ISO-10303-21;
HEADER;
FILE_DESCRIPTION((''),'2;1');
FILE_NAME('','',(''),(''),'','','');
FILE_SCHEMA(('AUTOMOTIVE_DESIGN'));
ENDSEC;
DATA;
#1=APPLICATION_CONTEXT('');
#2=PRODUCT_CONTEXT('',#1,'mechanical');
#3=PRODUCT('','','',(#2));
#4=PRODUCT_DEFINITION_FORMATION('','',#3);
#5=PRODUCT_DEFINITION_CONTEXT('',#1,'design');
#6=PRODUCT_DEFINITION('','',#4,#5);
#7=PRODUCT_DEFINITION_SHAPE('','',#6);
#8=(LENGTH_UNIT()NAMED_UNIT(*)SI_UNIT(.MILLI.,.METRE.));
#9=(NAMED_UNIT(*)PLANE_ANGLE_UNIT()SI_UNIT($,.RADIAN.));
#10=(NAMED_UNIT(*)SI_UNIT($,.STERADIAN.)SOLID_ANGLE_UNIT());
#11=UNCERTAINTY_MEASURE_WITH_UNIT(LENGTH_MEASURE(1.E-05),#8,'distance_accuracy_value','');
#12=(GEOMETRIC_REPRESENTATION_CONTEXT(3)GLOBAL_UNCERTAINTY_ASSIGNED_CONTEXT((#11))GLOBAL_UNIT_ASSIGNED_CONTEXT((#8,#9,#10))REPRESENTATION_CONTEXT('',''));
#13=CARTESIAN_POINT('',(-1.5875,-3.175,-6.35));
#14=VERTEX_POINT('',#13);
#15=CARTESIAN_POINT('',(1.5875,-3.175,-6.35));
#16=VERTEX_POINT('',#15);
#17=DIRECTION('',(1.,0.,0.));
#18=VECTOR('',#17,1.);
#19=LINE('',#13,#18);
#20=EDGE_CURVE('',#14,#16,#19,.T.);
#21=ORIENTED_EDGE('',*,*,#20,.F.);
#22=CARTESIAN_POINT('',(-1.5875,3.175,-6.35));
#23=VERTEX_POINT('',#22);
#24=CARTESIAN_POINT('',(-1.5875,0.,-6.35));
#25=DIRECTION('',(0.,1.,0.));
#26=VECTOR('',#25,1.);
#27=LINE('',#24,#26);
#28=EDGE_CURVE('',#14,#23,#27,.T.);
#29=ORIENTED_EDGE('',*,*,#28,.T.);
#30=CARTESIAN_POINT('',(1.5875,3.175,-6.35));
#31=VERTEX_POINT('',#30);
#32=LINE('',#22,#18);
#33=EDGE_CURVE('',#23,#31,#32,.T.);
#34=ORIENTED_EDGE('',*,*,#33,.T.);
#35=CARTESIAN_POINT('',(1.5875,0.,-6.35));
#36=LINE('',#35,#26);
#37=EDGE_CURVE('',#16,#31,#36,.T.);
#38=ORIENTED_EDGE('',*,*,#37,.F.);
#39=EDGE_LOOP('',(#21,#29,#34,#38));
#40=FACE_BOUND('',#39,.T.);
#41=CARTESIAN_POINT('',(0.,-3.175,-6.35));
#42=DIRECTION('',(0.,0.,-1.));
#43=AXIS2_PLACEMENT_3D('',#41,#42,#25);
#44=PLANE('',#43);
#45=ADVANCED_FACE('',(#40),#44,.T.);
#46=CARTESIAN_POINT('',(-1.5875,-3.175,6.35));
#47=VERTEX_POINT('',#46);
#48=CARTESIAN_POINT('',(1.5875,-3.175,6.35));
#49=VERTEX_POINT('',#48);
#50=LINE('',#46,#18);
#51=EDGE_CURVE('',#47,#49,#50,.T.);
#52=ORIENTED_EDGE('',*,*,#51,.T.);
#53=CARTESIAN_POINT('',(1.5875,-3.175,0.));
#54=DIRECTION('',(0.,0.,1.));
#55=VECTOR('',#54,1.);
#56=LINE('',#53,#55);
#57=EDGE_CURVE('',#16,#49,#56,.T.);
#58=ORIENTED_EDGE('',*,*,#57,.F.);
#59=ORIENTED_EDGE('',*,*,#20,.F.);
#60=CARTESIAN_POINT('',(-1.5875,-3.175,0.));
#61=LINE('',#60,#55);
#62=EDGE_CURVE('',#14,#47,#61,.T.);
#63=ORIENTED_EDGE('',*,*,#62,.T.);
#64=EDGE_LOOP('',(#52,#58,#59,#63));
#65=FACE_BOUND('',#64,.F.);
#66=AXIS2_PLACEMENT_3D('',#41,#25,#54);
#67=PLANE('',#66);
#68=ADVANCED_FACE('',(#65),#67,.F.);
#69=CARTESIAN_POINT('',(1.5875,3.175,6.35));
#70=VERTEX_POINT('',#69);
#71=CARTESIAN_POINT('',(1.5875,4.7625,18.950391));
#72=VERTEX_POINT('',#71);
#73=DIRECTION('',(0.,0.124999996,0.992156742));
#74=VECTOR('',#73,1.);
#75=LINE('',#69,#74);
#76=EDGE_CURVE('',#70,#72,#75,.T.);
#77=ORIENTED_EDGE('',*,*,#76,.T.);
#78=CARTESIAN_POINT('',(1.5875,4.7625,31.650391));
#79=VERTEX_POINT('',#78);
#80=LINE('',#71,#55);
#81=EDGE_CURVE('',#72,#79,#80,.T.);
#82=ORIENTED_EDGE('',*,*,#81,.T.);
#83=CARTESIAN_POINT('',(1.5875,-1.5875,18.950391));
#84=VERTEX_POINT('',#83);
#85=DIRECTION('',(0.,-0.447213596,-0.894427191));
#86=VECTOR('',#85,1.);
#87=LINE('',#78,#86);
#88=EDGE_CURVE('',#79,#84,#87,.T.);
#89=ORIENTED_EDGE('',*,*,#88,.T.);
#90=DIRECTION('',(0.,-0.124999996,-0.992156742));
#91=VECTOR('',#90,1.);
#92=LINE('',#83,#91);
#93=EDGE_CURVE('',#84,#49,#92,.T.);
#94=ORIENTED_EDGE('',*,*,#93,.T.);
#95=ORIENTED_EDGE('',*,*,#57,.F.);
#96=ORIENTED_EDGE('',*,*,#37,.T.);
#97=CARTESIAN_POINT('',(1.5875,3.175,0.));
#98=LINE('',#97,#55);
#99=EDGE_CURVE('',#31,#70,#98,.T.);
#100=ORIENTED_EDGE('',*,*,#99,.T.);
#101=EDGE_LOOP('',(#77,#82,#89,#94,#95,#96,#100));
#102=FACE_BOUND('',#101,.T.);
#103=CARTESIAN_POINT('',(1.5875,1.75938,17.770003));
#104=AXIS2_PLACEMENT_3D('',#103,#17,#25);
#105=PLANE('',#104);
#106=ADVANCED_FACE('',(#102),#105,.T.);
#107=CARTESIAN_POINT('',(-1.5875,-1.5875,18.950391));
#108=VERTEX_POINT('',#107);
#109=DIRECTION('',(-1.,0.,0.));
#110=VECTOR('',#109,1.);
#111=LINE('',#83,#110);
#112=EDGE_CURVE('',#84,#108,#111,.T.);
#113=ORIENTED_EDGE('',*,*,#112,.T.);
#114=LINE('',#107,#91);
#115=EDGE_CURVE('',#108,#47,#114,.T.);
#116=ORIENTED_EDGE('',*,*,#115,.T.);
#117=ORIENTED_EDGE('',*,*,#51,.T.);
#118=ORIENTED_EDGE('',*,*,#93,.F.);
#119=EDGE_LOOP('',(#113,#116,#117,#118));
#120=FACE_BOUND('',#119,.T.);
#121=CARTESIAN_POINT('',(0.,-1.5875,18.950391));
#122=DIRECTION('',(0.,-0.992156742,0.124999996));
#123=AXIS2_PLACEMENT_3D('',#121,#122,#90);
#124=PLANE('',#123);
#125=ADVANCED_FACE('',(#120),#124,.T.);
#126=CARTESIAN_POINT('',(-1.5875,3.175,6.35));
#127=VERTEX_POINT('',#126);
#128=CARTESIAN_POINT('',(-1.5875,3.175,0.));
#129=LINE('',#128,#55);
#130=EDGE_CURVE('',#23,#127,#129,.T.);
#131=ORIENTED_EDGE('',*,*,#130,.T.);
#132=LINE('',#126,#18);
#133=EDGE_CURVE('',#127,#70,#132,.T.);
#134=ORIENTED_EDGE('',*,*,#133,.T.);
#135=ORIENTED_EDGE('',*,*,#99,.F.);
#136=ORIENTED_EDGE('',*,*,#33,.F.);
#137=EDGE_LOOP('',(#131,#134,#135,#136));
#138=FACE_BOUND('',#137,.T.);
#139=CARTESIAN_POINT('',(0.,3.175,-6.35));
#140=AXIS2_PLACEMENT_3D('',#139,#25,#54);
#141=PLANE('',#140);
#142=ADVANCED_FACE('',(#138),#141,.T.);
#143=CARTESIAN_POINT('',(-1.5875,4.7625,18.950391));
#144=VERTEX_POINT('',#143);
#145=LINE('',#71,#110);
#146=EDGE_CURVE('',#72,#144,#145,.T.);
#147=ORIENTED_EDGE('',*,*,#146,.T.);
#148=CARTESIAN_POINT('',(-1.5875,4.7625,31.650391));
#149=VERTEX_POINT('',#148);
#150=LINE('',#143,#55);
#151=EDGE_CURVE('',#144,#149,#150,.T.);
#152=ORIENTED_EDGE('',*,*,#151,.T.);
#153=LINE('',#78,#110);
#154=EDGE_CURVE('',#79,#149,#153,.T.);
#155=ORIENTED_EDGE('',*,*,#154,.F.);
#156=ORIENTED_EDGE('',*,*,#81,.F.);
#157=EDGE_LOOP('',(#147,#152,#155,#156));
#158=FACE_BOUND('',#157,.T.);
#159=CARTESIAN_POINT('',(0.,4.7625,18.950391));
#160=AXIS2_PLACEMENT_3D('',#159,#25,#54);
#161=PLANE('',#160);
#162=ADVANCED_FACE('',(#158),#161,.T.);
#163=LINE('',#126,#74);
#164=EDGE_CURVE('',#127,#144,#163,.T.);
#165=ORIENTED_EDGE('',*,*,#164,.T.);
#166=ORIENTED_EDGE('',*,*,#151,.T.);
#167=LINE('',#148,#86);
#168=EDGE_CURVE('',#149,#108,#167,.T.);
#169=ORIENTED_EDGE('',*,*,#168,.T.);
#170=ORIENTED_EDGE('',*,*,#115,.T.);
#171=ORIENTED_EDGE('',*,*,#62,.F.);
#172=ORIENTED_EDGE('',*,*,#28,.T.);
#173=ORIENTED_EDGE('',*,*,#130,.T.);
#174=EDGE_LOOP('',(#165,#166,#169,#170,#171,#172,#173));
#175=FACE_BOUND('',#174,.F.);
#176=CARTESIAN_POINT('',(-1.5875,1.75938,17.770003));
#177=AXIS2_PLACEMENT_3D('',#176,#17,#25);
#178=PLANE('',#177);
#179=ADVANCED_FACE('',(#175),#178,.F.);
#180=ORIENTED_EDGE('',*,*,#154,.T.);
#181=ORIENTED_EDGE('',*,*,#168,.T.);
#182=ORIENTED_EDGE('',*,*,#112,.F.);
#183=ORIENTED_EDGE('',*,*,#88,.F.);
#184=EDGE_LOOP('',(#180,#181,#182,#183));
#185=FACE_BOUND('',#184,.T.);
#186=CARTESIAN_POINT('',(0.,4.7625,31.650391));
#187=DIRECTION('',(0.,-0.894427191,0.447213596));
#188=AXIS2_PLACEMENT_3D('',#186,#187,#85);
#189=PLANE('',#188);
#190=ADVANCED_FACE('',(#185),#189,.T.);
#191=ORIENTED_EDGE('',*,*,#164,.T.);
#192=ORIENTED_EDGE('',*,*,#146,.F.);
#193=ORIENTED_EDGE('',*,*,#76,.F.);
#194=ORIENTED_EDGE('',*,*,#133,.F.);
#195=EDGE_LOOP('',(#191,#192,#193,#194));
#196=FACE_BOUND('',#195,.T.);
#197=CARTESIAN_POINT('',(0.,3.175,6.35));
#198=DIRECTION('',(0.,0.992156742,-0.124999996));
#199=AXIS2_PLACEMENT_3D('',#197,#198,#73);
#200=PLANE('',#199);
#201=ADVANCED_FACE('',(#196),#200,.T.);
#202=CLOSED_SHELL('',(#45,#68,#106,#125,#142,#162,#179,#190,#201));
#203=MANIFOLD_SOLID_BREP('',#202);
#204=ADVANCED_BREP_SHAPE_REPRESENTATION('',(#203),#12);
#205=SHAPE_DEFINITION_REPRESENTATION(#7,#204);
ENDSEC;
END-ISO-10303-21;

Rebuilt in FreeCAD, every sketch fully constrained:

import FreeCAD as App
import Part
import Sketcher
from FreeCAD import Vector
Q = App.Units.Quantity

doc = App.newDocument("Part")
body = doc.addObject("PartDesign::Body", "Body")

# Sketch on YZ plane
sketch1 = doc.addObject("Sketcher::SketchObject", "Sketch")
body.addObject(sketch1)
sketch1.AttachmentSupport = (doc.YZ_Plane, [""])
sketch1.MapMode = "FlatFace"
sketch1.addGeometry([
    Part.LineSegment(Vector(-1.5875, 18.950391, 0), Vector(-3.175, 6.35, 0)),  # 0
    Part.LineSegment(Vector(-3.175, 6.35, 0), Vector(-3.175, -6.35, 0)),  # 1
    Part.LineSegment(Vector(-3.175, -6.35, 0), Vector(3.175, -6.35, 0)),  # 2
    Part.LineSegment(Vector(3.175, -6.35, 0), Vector(3.175, 6.35, 0)),  # 3
    Part.LineSegment(Vector(3.175, 6.35, 0), Vector(4.7625, 18.950391, 0)),  # 4
    Part.LineSegment(Vector(4.7625, 18.950391, 0), Vector(4.7625, 31.650391, 0)),  # 5
    Part.LineSegment(Vector(4.7625, 31.650391, 0), Vector(-1.5875, 18.950391, 0)),  # 6
], False)
sketch1.addConstraint([
    Sketcher.Constraint("Coincident", 0, 2, 1, 1),
    Sketcher.Constraint("Coincident", 1, 2, 2, 1),
    Sketcher.Constraint("Coincident", 2, 2, 3, 1),
    Sketcher.Constraint("Coincident", 3, 2, 4, 1),
    Sketcher.Constraint("Coincident", 4, 2, 5, 1),
    Sketcher.Constraint("Coincident", 5, 2, 6, 1),
    Sketcher.Constraint("Coincident", 6, 2, 0, 1),
    Sketcher.Constraint("Vertical", 1),
    Sketcher.Constraint("Horizontal", 2),
    Sketcher.Constraint("Vertical", 3),
    Sketcher.Constraint("Vertical", 5),
    Sketcher.Constraint("Symmetric", 0, 2, 2, 2, -1, 1),
    Sketcher.Constraint("Parallel", 0, 4),
    Sketcher.Constraint("Horizontal", 0, 2, 3, 2),
    Sketcher.Constraint("Horizontal", 4, 2, 6, 2),
    Sketcher.Constraint("Equal", 3, 5),
    Sketcher.Constraint("DistanceY", 1, 2, 1, 1, Q("0.5 in")),
    Sketcher.Constraint("Distance", 0, Q("0.5 in")),
    Sketcher.Constraint("DistanceX", 2, 1, 2, 2, Q("0.25 in")),
    Sketcher.Constraint("DistanceX", -1, 1, 4, 2, Q("0.1875 in")),
])
pad1 = doc.addObject("PartDesign::Pad", "Pad")
body.addObject(pad1)
pad1.Profile = sketch1
pad1.Length = Q("0.125 in")
pad1.Midplane = True

doc.recompute()
